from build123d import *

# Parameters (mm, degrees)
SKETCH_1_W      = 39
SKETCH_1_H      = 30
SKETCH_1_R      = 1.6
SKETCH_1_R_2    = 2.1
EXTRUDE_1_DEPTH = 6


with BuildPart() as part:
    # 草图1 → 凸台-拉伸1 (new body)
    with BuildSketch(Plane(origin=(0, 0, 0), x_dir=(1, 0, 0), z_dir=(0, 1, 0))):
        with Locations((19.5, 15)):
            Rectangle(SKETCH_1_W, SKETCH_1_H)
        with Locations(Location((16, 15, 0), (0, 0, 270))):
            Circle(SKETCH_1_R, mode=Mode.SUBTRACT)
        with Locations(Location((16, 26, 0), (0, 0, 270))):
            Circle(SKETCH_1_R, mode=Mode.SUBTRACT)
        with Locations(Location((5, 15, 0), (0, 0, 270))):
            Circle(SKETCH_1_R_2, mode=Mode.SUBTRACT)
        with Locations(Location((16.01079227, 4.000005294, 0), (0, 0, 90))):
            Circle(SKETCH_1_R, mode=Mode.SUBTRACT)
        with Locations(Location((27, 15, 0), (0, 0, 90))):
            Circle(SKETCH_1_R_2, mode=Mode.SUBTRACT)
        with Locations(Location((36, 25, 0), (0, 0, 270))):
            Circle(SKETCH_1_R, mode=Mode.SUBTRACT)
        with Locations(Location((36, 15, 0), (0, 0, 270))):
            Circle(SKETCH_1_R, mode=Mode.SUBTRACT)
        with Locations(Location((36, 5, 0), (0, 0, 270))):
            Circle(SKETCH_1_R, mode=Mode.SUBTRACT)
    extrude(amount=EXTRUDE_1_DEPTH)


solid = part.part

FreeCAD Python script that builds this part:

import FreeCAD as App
import Part
import Sketcher
from FreeCAD import Vector

doc = App.newDocument("Part")
body = doc.addObject("PartDesign::Body", "Body")

# Sketch on XZ plane
sketch1 = body.newObject("Sketcher::SketchObject", "Sketch")
sketch1.AttachmentSupport = (doc.getObject("XZ_Plane"), [""])
sketch1.MapMode = "FlatFace"
sketch1.addGeometry(Part.LineSegment(Vector(0, -30, 0), Vector(0, 0, 0)), False)
sketch1.addGeometry(Part.LineSegment(Vector(0, 0, 0), Vector(39, 0, 0)), False)
sketch1.addGeometry(Part.LineSegment(Vector(39, 0, 0), Vector(39, -30, 0)), False)
sketch1.addGeometry(Part.LineSegment(Vector(39, -30, 0), Vector(0, -30, 0)), False)
sketch1.addGeometry(Part.Circle(Vector(16, -4, 0), Vector(0, 0, 1), 1.6), False)
sketch1.addGeometry(Part.Circle(Vector(5, -15, 0), Vector(0, 0, 1), 2.1), False)
sketch1.addGeometry(Part.Circle(Vector(16, -15, 0), Vector(0, 0, 1), 1.6), False)
sketch1.addGeometry(Part.Circle(Vector(36, -5, 0), Vector(0, 0, 1), 1.6), False)
sketch1.addGeometry(Part.Circle(Vector(27, -15, 0), Vector(0, 0, 1), 2.1), False)
sketch1.addGeometry(Part.Circle(Vector(36, -15, 0), Vector(0, 0, 1), 1.6), False)
sketch1.addGeometry(Part.Circle(Vector(16, -26, 0), Vector(0, 0, 1), 1.6), False)
sketch1.addGeometry(Part.Circle(Vector(36, -25, 0), Vector(0, 0, 1), 1.6), False)
sketch1.addConstraint(Sketcher.Constraint("Coincident", 0, 2, 1, 1))
sketch1.addConstraint(Sketcher.Constraint("Coincident", 1, 2, 2, 1))
sketch1.addConstraint(Sketcher.Constraint("Coincident", 2, 2, 3, 1))
sketch1.addConstraint(Sketcher.Constraint("Coincident", 3, 2, 0, 1))
sketch1.addConstraint(Sketcher.Constraint("Vertical", 0))
sketch1.addConstraint(Sketcher.Constraint("Horizontal", 1))
sketch1.addConstraint(Sketcher.Constraint("Vertical", 2))
sketch1.addConstraint(Sketcher.Constraint("Horizontal", 3))
sketch1.addConstraint(Sketcher.Constraint("Coincident", 0, 2, -1, 1))
sketch1.addConstraint(Sketcher.Constraint("Equal", 4, 6))
sketch1.addConstraint(Sketcher.Constraint("Equal", 6, 7))
sketch1.addConstraint(Sketcher.Constraint("Equal", 5, 8))
sketch1.addConstraint(Sketcher.Constraint("Equal", 7, 9))
sketch1.addConstraint(Sketcher.Constraint("Equal", 9, 10))
sketch1.addConstraint(Sketcher.Constraint("Equal", 10, 11))
sketch1.addConstraint(Sketcher.Constraint("Horizontal", 5, 3, 6, 3))
sketch1.addConstraint(Sketcher.Constraint("Horizontal", 6, 3, 8, 3))
sketch1.addConstraint(Sketcher.Constraint("Horizontal", 8, 3, 9, 3))
sketch1.addConstraint(Sketcher.Constraint("Vertical", 7, 3, 9, 3))
sketch1.addConstraint(Sketcher.Constraint("Vertical", 6, 3, 10, 3))
sketch1.addConstraint(Sketcher.Constraint("Vertical", 9, 3, 11, 3))
sketch1.addConstraint(Sketcher.Constraint("Diameter", 4, 3.2))
sketch1.addConstraint(Sketcher.Constraint("Diameter", 5, 4.2))
sketch1.addConstraint(Sketcher.Constraint("DistanceX", 1, 1, 1, 2, 39.0))
sketch1.addConstraint(Sketcher.Constraint("DistanceY", 0, 1, 0, 2, 30.0))
sketch1.addConstraint(Sketcher.Constraint("DistanceX", -1, 1, 5, 3, 5.0))
sketch1.addConstraint(Sketcher.Constraint("DistanceY", 5, 3, -1, 1, 15.0))
sketch1.addConstraint(Sketcher.Constraint("DistanceX", -1, 1, 6, 3, 16.0))
sketch1.addConstraint(Sketcher.Constraint("DistanceX", -1, 1, 7, 3, 36.0))
sketch1.addConstraint(Sketcher.Constraint("DistanceY", 7, 3, -1, 1, 5.0))
sketch1.addConstraint(Sketcher.Constraint("DistanceX", -1, 1, 8, 3, 27.0))
sketch1.addConstraint(Sketcher.Constraint("DistanceY", 10, 3, -1, 1, 26.0))
sketch1.addConstraint(Sketcher.Constraint("DistanceY", 11, 3, -1, 1, 25.0))
sketch1.addConstraint(Sketcher.Constraint("DistanceX", -1, 1, 4, 3, 16.010792))
sketch1.addConstraint(Sketcher.Constraint("DistanceY", 4, 3, -1, 1, 4.000005))
pad1 = body.newObject("PartDesign::Pad", "Pad")
pad1.Profile = sketch1
pad1.Length = 6
pad1.Reversed = True

doc.recompute()
